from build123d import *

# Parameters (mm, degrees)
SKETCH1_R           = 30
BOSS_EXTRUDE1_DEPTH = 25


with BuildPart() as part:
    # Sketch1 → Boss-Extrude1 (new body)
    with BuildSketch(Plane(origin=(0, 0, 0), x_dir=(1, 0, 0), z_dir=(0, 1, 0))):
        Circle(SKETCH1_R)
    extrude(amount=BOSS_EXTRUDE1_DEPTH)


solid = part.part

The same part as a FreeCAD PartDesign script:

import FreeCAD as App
import Part
import Sketcher

V = App.Vector
Q = App.Units.Quantity

doc = App.newDocument("Part")
body = doc.addObject("PartDesign::Body", "Body")

# Sketch on XZ plane
sketch1 = body.newObject("Sketcher::SketchObject", "Sketch")
sketch1.AttachmentSupport = (doc.getObject("XZ_Plane"), [""])
sketch1.MapMode = "FlatFace"
sketch1.addGeometry(Part.Circle(V(0, 0, 0), V(0, 0, 1), 30), False)
sketch1.addConstraint([
    Sketcher.Constraint("Coincident", 0, 3, -1, 1),
    Sketcher.Constraint("Diameter", 0, Q("60 mm")),
])
pad1 = body.newObject("PartDesign::Pad", "Pad")
pad1.Profile = sketch1
pad1.Length = 25
pad1.Reversed = True

doc.recompute()
